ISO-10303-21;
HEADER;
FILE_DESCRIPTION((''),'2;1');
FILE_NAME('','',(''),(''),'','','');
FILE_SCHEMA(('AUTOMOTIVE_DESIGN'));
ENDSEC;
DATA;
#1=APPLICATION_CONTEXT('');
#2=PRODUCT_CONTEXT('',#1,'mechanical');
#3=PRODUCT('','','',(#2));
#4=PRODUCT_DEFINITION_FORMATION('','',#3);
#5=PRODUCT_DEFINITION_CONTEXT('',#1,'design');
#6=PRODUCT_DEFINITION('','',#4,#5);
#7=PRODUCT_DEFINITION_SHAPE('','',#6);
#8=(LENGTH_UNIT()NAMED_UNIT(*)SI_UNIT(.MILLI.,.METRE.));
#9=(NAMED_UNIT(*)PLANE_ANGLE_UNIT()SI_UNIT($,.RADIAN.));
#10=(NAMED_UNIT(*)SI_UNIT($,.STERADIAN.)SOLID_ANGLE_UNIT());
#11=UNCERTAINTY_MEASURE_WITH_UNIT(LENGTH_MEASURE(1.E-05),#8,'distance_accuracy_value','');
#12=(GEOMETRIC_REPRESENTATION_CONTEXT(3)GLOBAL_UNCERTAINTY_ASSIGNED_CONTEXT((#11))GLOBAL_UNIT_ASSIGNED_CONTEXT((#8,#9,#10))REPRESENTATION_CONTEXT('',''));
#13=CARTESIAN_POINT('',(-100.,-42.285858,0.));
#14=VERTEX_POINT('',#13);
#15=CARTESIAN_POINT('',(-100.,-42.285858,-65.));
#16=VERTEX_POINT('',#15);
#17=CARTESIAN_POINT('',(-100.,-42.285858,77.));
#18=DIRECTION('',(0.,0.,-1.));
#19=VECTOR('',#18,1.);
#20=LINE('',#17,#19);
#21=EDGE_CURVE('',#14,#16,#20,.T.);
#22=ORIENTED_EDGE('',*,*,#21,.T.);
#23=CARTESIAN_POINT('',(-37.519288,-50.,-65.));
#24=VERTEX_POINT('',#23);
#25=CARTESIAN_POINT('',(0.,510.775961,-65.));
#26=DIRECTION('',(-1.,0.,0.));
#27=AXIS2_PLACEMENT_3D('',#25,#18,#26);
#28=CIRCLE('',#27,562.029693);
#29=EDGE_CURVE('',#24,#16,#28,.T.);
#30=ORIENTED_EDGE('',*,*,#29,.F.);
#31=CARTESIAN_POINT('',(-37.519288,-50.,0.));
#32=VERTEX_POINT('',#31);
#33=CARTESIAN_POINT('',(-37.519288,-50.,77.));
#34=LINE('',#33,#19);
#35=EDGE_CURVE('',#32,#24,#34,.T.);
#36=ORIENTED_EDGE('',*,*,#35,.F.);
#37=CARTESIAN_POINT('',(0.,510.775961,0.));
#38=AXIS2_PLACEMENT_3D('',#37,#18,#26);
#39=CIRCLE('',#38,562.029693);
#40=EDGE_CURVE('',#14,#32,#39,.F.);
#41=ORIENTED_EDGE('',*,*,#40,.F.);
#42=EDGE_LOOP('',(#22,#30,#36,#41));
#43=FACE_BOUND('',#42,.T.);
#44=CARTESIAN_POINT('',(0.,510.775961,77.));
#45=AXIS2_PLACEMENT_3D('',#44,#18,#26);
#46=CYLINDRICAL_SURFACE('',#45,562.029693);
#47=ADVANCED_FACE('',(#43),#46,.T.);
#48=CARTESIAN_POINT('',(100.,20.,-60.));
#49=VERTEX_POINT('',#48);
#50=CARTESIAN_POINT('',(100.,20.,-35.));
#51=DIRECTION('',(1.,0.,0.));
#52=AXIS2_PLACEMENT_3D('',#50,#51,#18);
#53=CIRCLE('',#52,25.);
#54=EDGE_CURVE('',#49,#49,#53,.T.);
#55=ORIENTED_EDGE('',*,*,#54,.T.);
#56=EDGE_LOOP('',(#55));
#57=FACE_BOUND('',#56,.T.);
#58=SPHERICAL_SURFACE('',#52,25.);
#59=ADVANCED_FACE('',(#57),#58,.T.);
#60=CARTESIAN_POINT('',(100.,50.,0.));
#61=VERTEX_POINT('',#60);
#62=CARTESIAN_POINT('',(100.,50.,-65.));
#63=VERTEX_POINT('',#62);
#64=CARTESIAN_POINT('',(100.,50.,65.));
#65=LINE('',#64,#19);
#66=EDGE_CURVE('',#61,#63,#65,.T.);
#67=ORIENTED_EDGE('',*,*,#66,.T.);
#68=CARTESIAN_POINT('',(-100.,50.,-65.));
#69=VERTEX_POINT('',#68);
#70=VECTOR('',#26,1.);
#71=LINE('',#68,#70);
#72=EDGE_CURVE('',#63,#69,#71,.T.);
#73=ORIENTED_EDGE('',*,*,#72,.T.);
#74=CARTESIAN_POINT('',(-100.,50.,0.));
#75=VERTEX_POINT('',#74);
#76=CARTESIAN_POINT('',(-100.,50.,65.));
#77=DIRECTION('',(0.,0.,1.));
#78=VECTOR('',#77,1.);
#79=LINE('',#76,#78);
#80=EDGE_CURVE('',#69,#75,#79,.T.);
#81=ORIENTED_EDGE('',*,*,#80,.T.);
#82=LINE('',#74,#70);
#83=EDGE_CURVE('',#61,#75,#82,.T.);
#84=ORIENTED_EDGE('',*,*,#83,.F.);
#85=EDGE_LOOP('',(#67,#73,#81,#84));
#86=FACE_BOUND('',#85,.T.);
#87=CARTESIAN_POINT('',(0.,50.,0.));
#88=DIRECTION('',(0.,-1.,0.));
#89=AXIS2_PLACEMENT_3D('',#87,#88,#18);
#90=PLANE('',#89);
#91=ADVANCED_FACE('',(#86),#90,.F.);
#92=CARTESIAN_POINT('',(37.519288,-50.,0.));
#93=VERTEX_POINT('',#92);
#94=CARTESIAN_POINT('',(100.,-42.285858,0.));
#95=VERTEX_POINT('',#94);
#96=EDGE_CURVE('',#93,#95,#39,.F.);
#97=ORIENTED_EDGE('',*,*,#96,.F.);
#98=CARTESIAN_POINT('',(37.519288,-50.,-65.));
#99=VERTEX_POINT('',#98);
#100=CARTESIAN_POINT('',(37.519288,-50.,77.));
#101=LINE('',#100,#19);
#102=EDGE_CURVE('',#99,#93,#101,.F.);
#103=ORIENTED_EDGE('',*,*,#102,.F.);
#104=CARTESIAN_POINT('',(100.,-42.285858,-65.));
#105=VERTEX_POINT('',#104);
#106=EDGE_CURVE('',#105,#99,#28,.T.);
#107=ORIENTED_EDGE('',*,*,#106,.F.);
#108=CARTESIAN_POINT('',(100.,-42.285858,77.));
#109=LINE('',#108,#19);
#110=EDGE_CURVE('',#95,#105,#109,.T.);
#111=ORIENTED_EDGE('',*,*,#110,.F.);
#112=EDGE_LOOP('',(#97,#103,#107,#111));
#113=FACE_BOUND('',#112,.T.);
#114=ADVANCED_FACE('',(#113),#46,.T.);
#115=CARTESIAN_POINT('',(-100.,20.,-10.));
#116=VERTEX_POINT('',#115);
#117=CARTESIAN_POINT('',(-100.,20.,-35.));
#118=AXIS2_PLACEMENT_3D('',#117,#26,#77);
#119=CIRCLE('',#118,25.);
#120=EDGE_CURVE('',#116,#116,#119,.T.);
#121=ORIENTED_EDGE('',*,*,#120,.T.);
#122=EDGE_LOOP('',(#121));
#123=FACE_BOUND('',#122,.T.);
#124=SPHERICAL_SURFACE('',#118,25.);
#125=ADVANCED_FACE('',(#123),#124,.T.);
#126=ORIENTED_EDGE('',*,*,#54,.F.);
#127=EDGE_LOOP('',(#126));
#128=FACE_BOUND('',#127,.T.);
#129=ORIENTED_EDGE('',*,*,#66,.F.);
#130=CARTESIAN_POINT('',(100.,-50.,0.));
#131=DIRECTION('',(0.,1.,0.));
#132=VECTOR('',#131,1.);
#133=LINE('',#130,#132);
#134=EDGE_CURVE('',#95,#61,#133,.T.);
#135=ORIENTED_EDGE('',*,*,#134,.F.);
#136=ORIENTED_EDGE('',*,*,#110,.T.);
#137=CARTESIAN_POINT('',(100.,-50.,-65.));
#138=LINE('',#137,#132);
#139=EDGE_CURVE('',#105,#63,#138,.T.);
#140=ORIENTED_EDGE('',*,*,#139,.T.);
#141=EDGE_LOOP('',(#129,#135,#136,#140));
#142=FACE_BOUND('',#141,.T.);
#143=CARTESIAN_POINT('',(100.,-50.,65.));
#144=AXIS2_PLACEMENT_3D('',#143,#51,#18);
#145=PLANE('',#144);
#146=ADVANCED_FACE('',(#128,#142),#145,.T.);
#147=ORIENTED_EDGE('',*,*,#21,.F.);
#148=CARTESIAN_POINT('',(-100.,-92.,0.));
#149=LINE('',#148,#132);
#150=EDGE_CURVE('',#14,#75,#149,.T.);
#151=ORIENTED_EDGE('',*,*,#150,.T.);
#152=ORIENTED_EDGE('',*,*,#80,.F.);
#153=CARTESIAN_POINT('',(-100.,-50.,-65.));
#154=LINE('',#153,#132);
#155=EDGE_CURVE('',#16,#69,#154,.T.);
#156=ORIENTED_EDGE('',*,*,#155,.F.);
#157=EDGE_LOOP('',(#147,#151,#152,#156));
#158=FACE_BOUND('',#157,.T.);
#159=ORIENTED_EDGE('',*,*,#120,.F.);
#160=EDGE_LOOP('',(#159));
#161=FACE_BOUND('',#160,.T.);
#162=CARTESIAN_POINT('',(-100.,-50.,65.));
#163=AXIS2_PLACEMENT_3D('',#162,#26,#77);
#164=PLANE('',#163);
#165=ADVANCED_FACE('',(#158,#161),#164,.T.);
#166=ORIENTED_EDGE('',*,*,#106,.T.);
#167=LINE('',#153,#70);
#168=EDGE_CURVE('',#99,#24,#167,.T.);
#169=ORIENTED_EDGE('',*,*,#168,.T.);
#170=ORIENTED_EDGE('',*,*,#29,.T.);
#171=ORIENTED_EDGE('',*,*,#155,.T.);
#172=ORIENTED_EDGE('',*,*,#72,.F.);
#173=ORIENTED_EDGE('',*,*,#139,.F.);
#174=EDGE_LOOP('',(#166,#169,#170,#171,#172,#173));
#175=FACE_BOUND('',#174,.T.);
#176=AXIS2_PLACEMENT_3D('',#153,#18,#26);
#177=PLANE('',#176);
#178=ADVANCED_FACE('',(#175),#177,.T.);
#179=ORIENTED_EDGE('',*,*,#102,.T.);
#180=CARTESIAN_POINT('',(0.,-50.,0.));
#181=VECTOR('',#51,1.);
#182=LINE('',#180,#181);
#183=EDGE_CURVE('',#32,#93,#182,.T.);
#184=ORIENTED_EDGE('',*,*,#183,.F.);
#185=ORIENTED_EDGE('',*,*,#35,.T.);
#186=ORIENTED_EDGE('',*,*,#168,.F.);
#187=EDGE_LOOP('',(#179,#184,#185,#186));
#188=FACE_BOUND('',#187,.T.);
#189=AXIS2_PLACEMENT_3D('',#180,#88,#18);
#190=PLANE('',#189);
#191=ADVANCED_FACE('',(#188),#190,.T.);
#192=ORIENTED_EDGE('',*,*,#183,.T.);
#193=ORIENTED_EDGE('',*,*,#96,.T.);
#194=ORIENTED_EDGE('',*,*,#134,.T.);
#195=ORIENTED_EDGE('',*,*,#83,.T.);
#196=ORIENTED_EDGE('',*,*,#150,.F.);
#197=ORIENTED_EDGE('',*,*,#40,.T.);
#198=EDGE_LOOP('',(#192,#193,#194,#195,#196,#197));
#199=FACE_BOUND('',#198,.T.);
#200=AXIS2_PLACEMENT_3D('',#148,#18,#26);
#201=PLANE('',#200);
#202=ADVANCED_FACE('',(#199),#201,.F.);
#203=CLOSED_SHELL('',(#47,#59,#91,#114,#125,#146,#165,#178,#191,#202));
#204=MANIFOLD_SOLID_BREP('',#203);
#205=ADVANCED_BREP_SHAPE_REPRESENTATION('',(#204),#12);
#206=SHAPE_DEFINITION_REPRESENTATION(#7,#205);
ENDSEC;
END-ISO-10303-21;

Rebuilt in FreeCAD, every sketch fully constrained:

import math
import FreeCAD as App
import Part
import Sketcher
Q = App.Units.Quantity

doc = App.newDocument("Part")
params = doc.addObject("Spreadsheet::Sheet", "Params")
for row, (alias, value) in enumerate([
    ("sketch1_width", "200 mm"),
    ("sketch1_height", "130 mm"),
    ("pad1_length", "50 mm"),
    ("pad1_length2", "50 mm"),
    ("sketch2_diameter", "10 mm"),
    ("pad2_length", "20 mm"),
    ("sketch3_radius", "25 mm"),
    ("revolution_angle", "360 deg"),
    ("pocket1_length", "142 mm"),
    ("pocket2_length", "142 mm"),
], start=1):
    params.set(f"A{row}", alias)
    params.set(f"B{row}", "=" + value)
    params.setAlias(f"B{row}", alias)

body = doc.addObject("PartDesign::Body", "Body")

# Sketch on XZ plane
sketch1 = body.newObject("Sketcher::SketchObject", "Sketch")
sketch1.AttachmentSupport = (doc.getObject("XZ_Plane"), [""])
sketch1.MapMode = "FlatFace"
sketch1.addGeometry(Part.LineSegment(App.Vector(-100, -65, 0), App.Vector(-100, 65, 0)), False)
sketch1.addGeometry(Part.LineSegment(App.Vector(-100, 65, 0), App.Vector(100, 65, 0)), False)
sketch1.addGeometry(Part.LineSegment(App.Vector(100, 65, 0), App.Vector(100, -65, 0)), False)
sketch1.addGeometry(Part.LineSegment(App.Vector(100, -65, 0), App.Vector(-100, -65, 0)), False)
sketch1.addConstraint(Sketcher.Constraint("Coincident", 0, 2, 1, 1))
sketch1.addConstraint(Sketcher.Constraint("Coincident", 1, 2, 2, 1))
sketch1.addConstraint(Sketcher.Constraint("Coincident", 2, 2, 3, 1))
sketch1.addConstraint(Sketcher.Constraint("Coincident", 3, 2, 0, 1))
sketch1.addConstraint(Sketcher.Constraint("Vertical", 0))
sketch1.addConstraint(Sketcher.Constraint("Horizontal", 1))
sketch1.addConstraint(Sketcher.Constraint("Vertical", 2))
sketch1.addConstraint(Sketcher.Constraint("Horizontal", 3))
sketch1.addConstraint(Sketcher.Constraint("Symmetric", 0, 2, 2, 2, -1, 1))
sketch1.addConstraint(Sketcher.Constraint("DistanceX", 1, 1, 1, 2, Q("200 mm")))
sketch1.addConstraint(Sketcher.Constraint("DistanceY", 0, 1, 0, 2, Q("130 mm")))
sketch1.setExpression("Constraints[9]", "Params.sketch1_width")
sketch1.setExpression("Constraints[10]", "Params.sketch1_height")
pad1 = body.newObject("PartDesign::Pad", "Pad")
pad1.Profile = sketch1
pad1.Type = "TwoLengths"
pad1.setExpression("Length", "Params.pad1_length")
pad1.setExpression("Length2", "Params.pad1_length2")
pad1.Reversed = True

# Sketch on XY plane
sketch2 = body.newObject("Sketcher::SketchObject", "Sketch001")
sketch2.AttachmentSupport = (doc.getObject("XY_Plane"), [""])
sketch2.MapMode = "FlatFace"
sketch2.AttachmentOffset = App.Placement(App.Vector(0, 0, 65), App.Rotation())
sketch2.addGeometry(Part.Circle(App.Vector(0, 0, 0), App.Vector(0, 0, 1), 5), False)
sketch2.addConstraint(Sketcher.Constraint("Coincident", 0, 3, -1, 1))
sketch2.addConstraint(Sketcher.Constraint("Diameter", 0, Q("10 mm")))
sketch2.setExpression("Constraints[1]", "Params.sketch2_diameter")
pad2 = body.newObject("PartDesign::Pad", "Pad001")
pad2.Profile = sketch2
pad2.setExpression("Length", "Params.pad2_length")

# Sketch on YZ plane
sketch3 = body.newObject("Sketcher::SketchObject", "Sketch002")
sketch3.AttachmentSupport = (doc.getObject("YZ_Plane"), [""])
sketch3.MapMode = "FlatFace"
sketch3.AttachmentOffset = App.Placement(App.Vector(0, 0, -100), App.Rotation())
sketch3.addGeometry(Part.LineSegment(App.Vector(45, -35, 0), App.Vector(-5, -35, 0)), False)
sketch3.addGeometry(Part.ArcOfCircle(Part.Circle(App.Vector(20, -35, 0), App.Vector(0, 0, 1), 25), math.radians(0), math.radians(180)), False)
sketch3.addGeometry(Part.LineSegment(App.Vector(-5, -35, 0), App.Vector(45, -35, 0)), True)  # axis
sketch3.addConstraint(Sketcher.Constraint("Coincident", 0, 1, 1, 1))
sketch3.addConstraint(Sketcher.Constraint("Coincident", 1, 2, 0, 2))
sketch3.addConstraint(Sketcher.Constraint("Horizontal", 0))
sketch3.addConstraint(Sketcher.Constraint("Horizontal", 2))
sketch3.addConstraint(Sketcher.Constraint("Coincident", 2, 1, 1, 2))
sketch3.addConstraint(Sketcher.Constraint("Horizontal", 1, 3, 0, 1))
sketch3.addConstraint(Sketcher.Constraint("Equal", 0, 2))
sketch3.addConstraint(Sketcher.Constraint("Radius", 1, Q("25 mm")))
sketch3.addConstraint(Sketcher.Constraint("DistanceX", -1, 1, 1, 3, Q("20 mm")))
sketch3.addConstraint(Sketcher.Constraint("DistanceY", 1, 3, -1, 1, Q("35 mm")))
sketch3.setExpression("Constraints[7]", "Params.sketch3_radius")
revolution = body.newObject("PartDesign::Revolution", "Revolution")
revolution.Profile = sketch3
revolution.ReferenceAxis = (sketch3, ["Axis0"])
revolution.setExpression("Angle", "Params.revolution_angle")
doc.recompute()

mirrored = body.newObject("PartDesign::Mirrored", "Mirrored")
mirrored.Originals = [revolution]
mirrored.MirrorPlane = (doc.getObject("YZ_Plane"), [""])
body.Tip = mirrored

# Sketch on XY plane
sketch4 = body.newObject("Sketcher::SketchObject", "Sketch003")
sketch4.AttachmentSupport = (doc.getObject("XY_Plane"), [""])
sketch4.MapMode = "FlatFace"
sketch4.AttachmentOffset = App.Placement(App.Vector(0, 0, -65), App.Rotation())
sketch4.addGeometry(Part.ArcOfCircle(Part.Circle(App.Vector(0, 511, 0), App.Vector(0, 0, 1), 562), math.radians(-86.17), math.radians(-79.75)), False)
sketch4.addGeometry(Part.LineSegment(App.Vector(100, -42, 0), App.Vector(100, -50, 0)), False)
sketch4.addGeometry(Part.LineSegment(App.Vector(100, -50, 0), App.Vector(38, -50, 0)), False)
sketch4.addGeometry(Part.LineSegment(App.Vector(-100, -50, 0), App.Vector(-100, -42, 0)), False)
sketch4.addGeometry(Part.ArcOfCircle(Part.Circle(App.Vector(0, 511, 0), App.Vector(0, 0, 1), 562), math.radians(-100.25), math.radians(-93.83)), False)
sketch4.addGeometry(Part.LineSegment(App.Vector(-38, -50, 0), App.Vector(-100, -50, 0)), False)
sketch4.addConstraint(Sketcher.Constraint("Coincident", 0, 2, 1, 1))
sketch4.addConstraint(Sketcher.Constraint("Coincident", 1, 2, 2, 1))
sketch4.addConstraint(Sketcher.Constraint("Coincident", 2, 2, 0, 1))
sketch4.addConstraint(Sketcher.Constraint("Coincident", 3, 2, 4, 1))
sketch4.addConstraint(Sketcher.Constraint("Coincident", 4, 2, 5, 1))
sketch4.addConstraint(Sketcher.Constraint("Coincident", 5, 2, 3, 1))
sketch4.addConstraint(Sketcher.Constraint("Vertical", 1))
sketch4.addConstraint(Sketcher.Constraint("Horizontal", 2))
sketch4.addConstraint(Sketcher.Constraint("Vertical", 3))
sketch4.addConstraint(Sketcher.Constraint("Horizontal", 5))
sketch4.addConstraint(Sketcher.Constraint("Coincident", 4, 3, 0, 3))
sketch4.addConstraint(Sketcher.Constraint("Equal", 0, 4))
sketch4.addConstraint(Sketcher.Constraint("Symmetric", 2, 2, 4, 2, -2))
sketch4.addConstraint(Sketcher.Constraint("Equal", 2, 5))
sketch4.addConstraint(Sketcher.Constraint("DistanceX", -1, 1, 1, 2, Q("100 mm")))
sketch4.addConstraint(Sketcher.Constraint("DistanceY", 1, 2, -1, 1, Q("50 mm")))
sketch4.addConstraint(Sketcher.Constraint("Radius", 0, Q("562.029693 mm")))
sketch4.addConstraint(Sketcher.Constraint("DistanceX", 2, 2, 2, 1, Q("62.480712 mm")))
pocket1 = body.newObject("PartDesign::Pocket", "Pocket")
pocket1.Profile = sketch4
pocket1.setExpression("Length", "Params.pocket1_length")
pocket1.Reversed = True

# Sketch on XZ plane
sketch5 = body.newObject("Sketcher::SketchObject", "Sketch004")
sketch5.AttachmentSupport = (doc.getObject("XZ_Plane"), [""])
sketch5.MapMode = "FlatFace"
sketch5.AttachmentOffset = App.Placement(App.Vector(0, 0, -50), App.Rotation())
sketch5.addGeometry(Part.LineSegment(App.Vector(-100, 0, 0), App.Vector(-100, 102, 0)), False)
sketch5.addGeometry(Part.LineSegment(App.Vector(-100, 102, 0), App.Vector(100, 102, 0)), False)
sketch5.addGeometry(Part.LineSegment(App.Vector(100, 102, 0), App.Vector(100, 0, 0)), False)
sketch5.addGeometry(Part.LineSegment(App.Vector(100, 0, 0), App.Vector(-100, 0, 0)), False)
sketch5.addConstraint(Sketcher.Constraint("Coincident", 0, 2, 1, 1))
sketch5.addConstraint(Sketcher.Constraint("Coincident", 1, 2, 2, 1))
sketch5.addConstraint(Sketcher.Constraint("Coincident", 2, 2, 3, 1))
sketch5.addConstraint(Sketcher.Constraint("Coincident", 3, 2, 0, 1))
sketch5.addConstraint(Sketcher.Constraint("Vertical", 0))
sketch5.addConstraint(Sketcher.Constraint("Horizontal", 1))
sketch5.addConstraint(Sketcher.Constraint("Vertical", 2))
sketch5.addConstraint(Sketcher.Constraint("Horizontal", 3))
sketch5.addConstraint(Sketcher.Constraint("PointOnObject", 2, 2, -1))
sketch5.addConstraint(Sketcher.Constraint("DistanceX", 0, 2, -1, 1, Q("100 mm")))
sketch5.addConstraint(Sketcher.Constraint("DistanceX", 1, 1, 1, 2, Q("200.147061 mm")))
sketch5.addConstraint(Sketcher.Constraint("DistanceY", 0, 1, 0, 2, Q("101.729154 mm")))
pocket2 = body.newObject("PartDesign::Pocket", "Pocket001")
pocket2.Profile = sketch5
pocket2.setExpression("Length", "Params.pocket2_length")
pocket2.Reversed = True

doc.recompute()
